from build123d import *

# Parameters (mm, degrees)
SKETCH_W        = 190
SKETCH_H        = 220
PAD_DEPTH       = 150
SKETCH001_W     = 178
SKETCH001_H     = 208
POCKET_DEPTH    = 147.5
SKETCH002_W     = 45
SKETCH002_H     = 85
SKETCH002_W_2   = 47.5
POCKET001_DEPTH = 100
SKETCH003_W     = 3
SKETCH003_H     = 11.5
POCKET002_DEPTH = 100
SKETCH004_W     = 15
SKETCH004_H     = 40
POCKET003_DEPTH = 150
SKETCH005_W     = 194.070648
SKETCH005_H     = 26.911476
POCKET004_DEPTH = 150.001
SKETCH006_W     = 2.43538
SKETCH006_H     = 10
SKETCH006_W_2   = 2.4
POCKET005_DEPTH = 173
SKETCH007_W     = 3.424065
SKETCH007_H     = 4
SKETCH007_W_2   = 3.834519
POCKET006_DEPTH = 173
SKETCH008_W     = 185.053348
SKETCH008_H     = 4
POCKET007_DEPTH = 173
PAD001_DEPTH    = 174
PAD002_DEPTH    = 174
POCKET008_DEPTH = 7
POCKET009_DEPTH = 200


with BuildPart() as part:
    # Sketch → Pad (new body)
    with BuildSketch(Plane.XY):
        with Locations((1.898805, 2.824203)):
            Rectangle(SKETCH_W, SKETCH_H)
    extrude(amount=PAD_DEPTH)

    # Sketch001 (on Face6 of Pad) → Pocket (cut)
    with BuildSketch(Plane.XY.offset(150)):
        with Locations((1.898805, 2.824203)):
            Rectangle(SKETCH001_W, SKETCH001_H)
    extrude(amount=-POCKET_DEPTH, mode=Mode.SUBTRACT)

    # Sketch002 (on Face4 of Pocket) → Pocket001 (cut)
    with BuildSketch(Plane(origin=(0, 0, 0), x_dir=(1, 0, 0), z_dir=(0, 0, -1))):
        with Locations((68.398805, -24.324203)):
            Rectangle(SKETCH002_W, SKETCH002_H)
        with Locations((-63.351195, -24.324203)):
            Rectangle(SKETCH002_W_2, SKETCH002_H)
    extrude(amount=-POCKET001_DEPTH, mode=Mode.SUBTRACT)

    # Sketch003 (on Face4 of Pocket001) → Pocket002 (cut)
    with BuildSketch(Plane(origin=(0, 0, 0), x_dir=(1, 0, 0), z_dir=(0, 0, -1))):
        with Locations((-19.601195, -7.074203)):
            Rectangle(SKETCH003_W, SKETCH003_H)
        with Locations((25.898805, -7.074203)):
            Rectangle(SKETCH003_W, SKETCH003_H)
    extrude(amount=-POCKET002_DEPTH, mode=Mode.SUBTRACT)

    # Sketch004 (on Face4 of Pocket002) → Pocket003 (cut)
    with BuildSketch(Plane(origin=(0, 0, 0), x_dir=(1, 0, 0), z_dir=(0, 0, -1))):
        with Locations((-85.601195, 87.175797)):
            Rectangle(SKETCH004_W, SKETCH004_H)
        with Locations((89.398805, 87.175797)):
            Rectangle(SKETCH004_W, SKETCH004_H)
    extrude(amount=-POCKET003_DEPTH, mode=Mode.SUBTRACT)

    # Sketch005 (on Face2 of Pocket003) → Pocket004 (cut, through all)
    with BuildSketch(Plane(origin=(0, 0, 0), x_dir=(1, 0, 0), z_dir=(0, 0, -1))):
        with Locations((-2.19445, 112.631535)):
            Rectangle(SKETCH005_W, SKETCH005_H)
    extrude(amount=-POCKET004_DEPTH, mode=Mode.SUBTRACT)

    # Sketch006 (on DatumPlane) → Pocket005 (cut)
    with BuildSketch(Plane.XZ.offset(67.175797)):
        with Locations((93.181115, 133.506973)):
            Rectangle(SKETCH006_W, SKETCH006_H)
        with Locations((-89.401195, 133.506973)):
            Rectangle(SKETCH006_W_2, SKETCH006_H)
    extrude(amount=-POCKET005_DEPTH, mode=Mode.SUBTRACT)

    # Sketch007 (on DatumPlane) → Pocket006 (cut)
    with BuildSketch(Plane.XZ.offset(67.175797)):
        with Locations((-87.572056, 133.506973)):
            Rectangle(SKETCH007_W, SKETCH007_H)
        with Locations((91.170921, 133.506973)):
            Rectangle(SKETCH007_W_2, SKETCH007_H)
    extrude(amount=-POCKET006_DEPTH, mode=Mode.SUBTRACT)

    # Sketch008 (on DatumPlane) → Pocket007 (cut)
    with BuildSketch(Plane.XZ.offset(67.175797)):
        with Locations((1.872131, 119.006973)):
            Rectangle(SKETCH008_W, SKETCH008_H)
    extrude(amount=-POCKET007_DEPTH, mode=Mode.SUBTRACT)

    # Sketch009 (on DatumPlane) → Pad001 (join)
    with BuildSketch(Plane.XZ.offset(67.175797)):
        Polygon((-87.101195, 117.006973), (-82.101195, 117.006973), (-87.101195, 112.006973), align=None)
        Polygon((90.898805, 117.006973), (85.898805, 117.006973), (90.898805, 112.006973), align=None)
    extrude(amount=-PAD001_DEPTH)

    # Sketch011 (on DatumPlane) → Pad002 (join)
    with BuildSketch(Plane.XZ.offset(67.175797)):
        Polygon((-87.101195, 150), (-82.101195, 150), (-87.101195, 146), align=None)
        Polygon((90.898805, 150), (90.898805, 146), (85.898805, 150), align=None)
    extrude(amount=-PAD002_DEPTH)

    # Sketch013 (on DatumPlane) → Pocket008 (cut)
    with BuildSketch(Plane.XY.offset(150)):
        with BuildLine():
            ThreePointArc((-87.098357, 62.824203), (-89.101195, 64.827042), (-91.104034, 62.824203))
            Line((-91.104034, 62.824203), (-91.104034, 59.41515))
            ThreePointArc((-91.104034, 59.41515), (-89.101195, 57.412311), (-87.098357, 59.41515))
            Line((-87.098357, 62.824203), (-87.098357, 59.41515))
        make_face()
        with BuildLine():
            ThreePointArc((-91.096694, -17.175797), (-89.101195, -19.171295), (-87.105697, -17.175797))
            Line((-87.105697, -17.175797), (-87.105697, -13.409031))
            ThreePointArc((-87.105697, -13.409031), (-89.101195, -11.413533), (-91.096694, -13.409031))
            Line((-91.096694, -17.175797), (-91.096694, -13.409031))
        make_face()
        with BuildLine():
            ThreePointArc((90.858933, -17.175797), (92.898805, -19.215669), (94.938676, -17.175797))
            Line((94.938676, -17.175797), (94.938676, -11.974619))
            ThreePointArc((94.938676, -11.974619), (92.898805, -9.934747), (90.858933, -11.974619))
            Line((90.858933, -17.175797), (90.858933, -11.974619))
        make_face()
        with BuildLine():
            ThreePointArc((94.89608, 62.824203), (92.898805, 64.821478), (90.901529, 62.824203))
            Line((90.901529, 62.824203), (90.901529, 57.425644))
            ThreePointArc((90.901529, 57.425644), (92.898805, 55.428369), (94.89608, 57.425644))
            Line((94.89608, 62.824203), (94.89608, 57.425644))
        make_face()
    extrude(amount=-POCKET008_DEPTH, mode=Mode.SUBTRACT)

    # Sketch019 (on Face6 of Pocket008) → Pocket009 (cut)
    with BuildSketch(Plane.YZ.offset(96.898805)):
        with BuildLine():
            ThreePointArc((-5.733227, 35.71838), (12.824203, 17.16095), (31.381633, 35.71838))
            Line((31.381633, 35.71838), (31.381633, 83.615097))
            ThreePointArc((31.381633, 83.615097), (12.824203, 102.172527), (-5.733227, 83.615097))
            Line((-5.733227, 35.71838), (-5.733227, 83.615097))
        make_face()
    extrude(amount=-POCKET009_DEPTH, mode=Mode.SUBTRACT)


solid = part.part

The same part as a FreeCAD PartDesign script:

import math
import FreeCAD as App
import Part
import Sketcher

V = App.Vector


def add_polygon(sketch, points):
    """Adds a closed chain of lines whose ends are joined by coincident constraints."""
    first, n = sketch.GeometryCount, len(points)
    for a, b in zip(points, points[1:] + points[:1]):
        sketch.addGeometry(Part.LineSegment(App.Vector(*a, 0), App.Vector(*b, 0)), False)
    for i in range(n):
        sketch.addConstraint(Sketcher.Constraint("Coincident", first + i, 2, first + (i + 1) % n, 1))

doc = App.newDocument("Part")
body = doc.addObject("PartDesign::Body", "Body")

# Sketch on XY plane
sketch1 = doc.addObject("Sketcher::SketchObject", "Sketch")
body.addObject(sketch1)
sketch1.AttachmentSupport = (doc.XY_Plane, [""])
sketch1.MapMode = "FlatFace"
add_polygon(sketch1, [(-93, 113), (-93, -107), (97, -107), (97, 113)])  # lines 0-3
sketch1.addConstraint([
    Sketcher.Constraint("Vertical", 0),
    Sketcher.Constraint("Horizontal", 1),
    Sketcher.Constraint("Vertical", 2),
    Sketcher.Constraint("Horizontal", 3),
    Sketcher.Constraint("DistanceX", 1, 1, 1, 2, 190.0),
    Sketcher.Constraint("DistanceY", 0, 2, 0, 1, 220.0),
    Sketcher.Constraint("DistanceX", 0, 2, -1, 1, 93.101195),
    Sketcher.Constraint("DistanceY", 0, 2, -1, 1, 107.175797),
])
pad1 = doc.addObject("PartDesign::Pad", "Pad")
body.addObject(pad1)
pad1.Profile = sketch1
pad1.Length = 150

# Sketch on XY plane
sketch2 = doc.addObject("Sketcher::SketchObject", "Sketch001")
body.addObject(sketch2)
sketch2.AttachmentSupport = (doc.XY_Plane, [""])
sketch2.MapMode = "FlatFace"
sketch2.AttachmentOffset = App.Placement(V(0, 0, 150), App.Rotation())
add_polygon(sketch2, [(-87, 107), (-87, -101), (91, -101), (91, 107)])  # lines 0-3
sketch2.addConstraint([
    Sketcher.Constraint("Vertical", 0),
    Sketcher.Constraint("Horizontal", 1),
    Sketcher.Constraint("Vertical", 2),
    Sketcher.Constraint("Horizontal", 3),
    Sketcher.Constraint("DistanceX", 1, 1, 1, 2, 178.0),
    Sketcher.Constraint("DistanceY", 0, 2, 0, 1, 208.0),
    Sketcher.Constraint("DistanceX", 0, 2, -1, 1, 87.101195),
    Sketcher.Constraint("DistanceY", 0, 2, -1, 1, 101.175797),
])
pocket1 = doc.addObject("PartDesign::Pocket", "Pocket")
body.addObject(pocket1)
pocket1.Profile = sketch2
pocket1.Length = 147.5

# Sketch on XY plane
sketch3 = doc.addObject("Sketcher::SketchObject", "Sketch002")
body.addObject(sketch3)
sketch3.AttachmentSupport = (doc.XY_Plane, [""])
sketch3.MapMode = "FlatFace"
add_polygon(sketch3, [(46, -18), (46, 67), (91, 67), (91, -18)])  # lines 0-3
add_polygon(sketch3, [(-87, -18), (-87, 67), (-40, 67), (-40, -18)])  # lines 4-7
sketch3.addConstraint([
    Sketcher.Constraint("Vertical", 0),
    Sketcher.Constraint("Horizontal", 1),
    Sketcher.Constraint("Vertical", 2),
    Sketcher.Constraint("Horizontal", 3),
    Sketcher.Constraint("Vertical", 4),
    Sketcher.Constraint("Horizontal", 5),
    Sketcher.Constraint("Vertical", 6),
    Sketcher.Constraint("Horizontal", 7),
    Sketcher.Constraint("Horizontal", 1, 2, 4, 2),
    Sketcher.Constraint("Horizontal", 3, 2, 6, 2),
    Sketcher.Constraint("DistanceX", 1, 1, 1, 2, 45.0),
    Sketcher.Constraint("DistanceY", 0, 1, 0, 2, 85.0),
    Sketcher.Constraint("DistanceX", 5, 1, 5, 2, 47.5),
    Sketcher.Constraint("DistanceX", 4, 2, 0, 2, 133.0),
    Sketcher.Constraint("DistanceX", -1, 1, 0, 2, 45.898805),
    Sketcher.Constraint("DistanceY", -1, 1, 0, 2, 66.824203),
])
pocket2 = doc.addObject("PartDesign::Pocket", "Pocket001")
body.addObject(pocket2)
pocket2.Profile = sketch3
pocket2.Length = 100
pocket2.Reversed = True

# Sketch on XY plane
sketch4 = doc.addObject("Sketcher::SketchObject", "Sketch003")
body.addObject(sketch4)
sketch4.AttachmentSupport = (doc.XY_Plane, [""])
sketch4.MapMode = "FlatFace"
add_polygon(sketch4, [(-21.1, 1.3), (-21.1, 12.8), (-18.1, 12.8), (-18.1, 1.3)])  # lines 0-3
add_polygon(sketch4, [(24.4, 1.3), (24.4, 12.8), (27.4, 12.8), (27.4, 1.3)])  # lines 4-7
sketch4.addConstraint([
    Sketcher.Constraint("Vertical", 0),
    Sketcher.Constraint("Horizontal", 1),
    Sketcher.Constraint("Vertical", 2),
    Sketcher.Constraint("Horizontal", 3),
    Sketcher.Constraint("Vertical", 4),
    Sketcher.Constraint("Horizontal", 5),
    Sketcher.Constraint("Vertical", 6),
    Sketcher.Constraint("Horizontal", 7),
    Sketcher.Constraint("Horizontal", 1, 2, 4, 2),
    Sketcher.Constraint("Horizontal", 3, 2, 6, 2),
    Sketcher.Constraint("Equal", 3, 5),
    Sketcher.Constraint("DistanceX", 1, 1, 1, 2, 3.0),
    Sketcher.Constraint("DistanceY", 0, 1, 0, 2, 11.5),
    Sketcher.Constraint("DistanceX", 1, 2, 4, 2, 42.5),
    Sketcher.Constraint("DistanceX", 0, 2, -1, 1, 21.101195),
    Sketcher.Constraint("DistanceY", -1, 1, 0, 2, 12.824203),
])
pocket3 = doc.addObject("PartDesign::Pocket", "Pocket002")
body.addObject(pocket3)
pocket3.Profile = sketch4
pocket3.Length = 100
pocket3.Reversed = True

# Sketch on XY plane
sketch5 = doc.addObject("Sketcher::SketchObject", "Sketch004")
body.addObject(sketch5)
sketch5.AttachmentSupport = (doc.XY_Plane, [""])
sketch5.MapMode = "FlatFace"
add_polygon(sketch5, [(-93, -107), (-93, -67), (-78, -67), (-78, -107)])  # lines 0-3
add_polygon(sketch5, [(82, -107), (82, -67), (97, -67), (97, -107)])  # lines 4-7
sketch5.addConstraint([
    Sketcher.Constraint("Vertical", 0),
    Sketcher.Constraint("Horizontal", 1),
    Sketcher.Constraint("Vertical", 2),
    Sketcher.Constraint("Horizontal", 3),
    Sketcher.Constraint("Vertical", 4),
    Sketcher.Constraint("Horizontal", 5),
    Sketcher.Constraint("Vertical", 6),
    Sketcher.Constraint("Horizontal", 7),
    Sketcher.Constraint("Horizontal", 1, 2, 4, 2),
    Sketcher.Constraint("Horizontal", 3, 2, 6, 2),
    Sketcher.Constraint("Equal", 3, 5),
    Sketcher.Constraint("DistanceX", 1, 1, 1, 2, 15.0),
    Sketcher.Constraint("DistanceY", 0, 1, 0, 2, 40.0),
    Sketcher.Constraint("DistanceX", 1, 2, 4, 2, 160.0),
    Sketcher.Constraint("DistanceX", 0, 2, -1, 1, 93.101195),
    Sketcher.Constraint("DistanceY", 0, 2, -1, 1, 67.175797),
])
pocket4 = doc.addObject("PartDesign::Pocket", "Pocket003")
body.addObject(pocket4)
pocket4.Profile = sketch5
pocket4.Length = 150
pocket4.Reversed = True

# Sketch on XY plane
sketch6 = doc.addObject("Sketcher::SketchObject", "Sketch005")
body.addObject(sketch6)
sketch6.AttachmentSupport = (doc.XY_Plane, [""])
sketch6.MapMode = "FlatFace"
add_polygon(sketch6, [(-99, -126), (-99, -99), (95, -99), (95, -126)])  # lines 0-3
sketch6.addConstraint([
    Sketcher.Constraint("Vertical", 0),
    Sketcher.Constraint("Horizontal", 1),
    Sketcher.Constraint("Vertical", 2),
    Sketcher.Constraint("Horizontal", 3),
    Sketcher.Constraint("DistanceX", 1, 1, 1, 2, 194.070648),
    Sketcher.Constraint("DistanceY", 0, 1, 0, 2, 26.911476),
    Sketcher.Constraint("DistanceX", 0, 2, -1, 1, 99.229774),
    Sketcher.Constraint("DistanceY", 0, 2, -1, 1, 99.175797),
])
pocket5 = doc.addObject("PartDesign::Pocket", "Pocket004")
body.addObject(pocket5)
pocket5.Profile = sketch6
pocket5.Type = "ThroughAll"
pocket5.Reversed = True

# Sketch on XZ plane
sketch7 = doc.addObject("Sketcher::SketchObject", "Sketch006")
body.addObject(sketch7)
sketch7.AttachmentSupport = (doc.XZ_Plane, [""])
sketch7.MapMode = "FlatFace"
sketch7.AttachmentOffset = App.Placement(V(0, 0, 67.175797), App.Rotation())
add_polygon(sketch7, [(92, 138.5), (92, 128.5), (94.4, 128.5), (94.4, 138.5)])  # lines 0-3
add_polygon(sketch7, [(-90.6, 138.5), (-90.6, 128.5), (-88.2, 128.5), (-88.2, 138.5)])  # lines 4-7
sketch7.addConstraint([
    Sketcher.Constraint("Vertical", 0),
    Sketcher.Constraint("Horizontal", 1),
    Sketcher.Constraint("Vertical", 2),
    Sketcher.Constraint("Horizontal", 3),
    Sketcher.Constraint("Vertical", 4),
    Sketcher.Constraint("Horizontal", 5),
    Sketcher.Constraint("Vertical", 6),
    Sketcher.Constraint("Horizontal", 7),
    Sketcher.Constraint("Horizontal", 1, 2, 4, 2),
    Sketcher.Constraint("Horizontal", 3, 2, 6, 2),
    Sketcher.Constraint("DistanceY", 0, 2, 0, 1, 10.0),
    Sketcher.Constraint("DistanceX", 5, 1, 5, 2, 2.4),
    Sketcher.Constraint("DistanceX", 4, 2, 1, 2, 185.0),
    Sketcher.Constraint("DistanceX", 1, 1, 1, 2, 2.43538),
    Sketcher.Constraint("DistanceX", -1, 1, 0, 2, 91.963425),
    Sketcher.Constraint("DistanceY", -1, 1, 0, 2, 128.506973),
])
pocket6 = doc.addObject("PartDesign::Pocket", "Pocket005")
body.addObject(pocket6)
pocket6.Profile = sketch7
pocket6.Length = 173

# Sketch on XZ plane
sketch8 = doc.addObject("Sketcher::SketchObject", "Sketch007")
body.addObject(sketch8)
sketch8.AttachmentSupport = (doc.XZ_Plane, [""])
sketch8.MapMode = "FlatFace"
sketch8.AttachmentOffset = App.Placement(V(0, 0, 67.175797), App.Rotation())
add_polygon(sketch8, [(-89.3, 135.5), (-89.3, 131.5), (-85.9, 131.5), (-85.9, 135.5)])  # lines 0-3
add_polygon(sketch8, [(89.3, 135.5), (89.3, 131.5), (93.1, 131.5), (93.1, 135.5)])  # lines 4-7
sketch8.addConstraint([
    Sketcher.Constraint("Vertical", 0),
    Sketcher.Constraint("Horizontal", 1),
    Sketcher.Constraint("Vertical", 2),
    Sketcher.Constraint("Horizontal", 3),
    Sketcher.Constraint("Vertical", 4),
    Sketcher.Constraint("Horizontal", 5),
    Sketcher.Constraint("Vertical", 6),
    Sketcher.Constraint("Horizontal", 7),
    Sketcher.Constraint("Horizontal", 1, 2, 4, 2),
    Sketcher.Constraint("Horizontal", 3, 2, 6, 2),
    Sketcher.Constraint("DistanceY", 0, 2, 0, 1, 4.0),
    Sketcher.Constraint("DistanceX", 5, 1, 5, 2, 3.834519),
    Sketcher.Constraint("DistanceX", 1, 1, 1, 2, 3.424065),
    Sketcher.Constraint("DistanceX", 0, 2, -1, 1, 89.284088),
    Sketcher.Constraint("DistanceX", -1, 1, 4, 2, 89.253662),
    Sketcher.Constraint("DistanceY", -1, 1, 0, 2, 131.506973),
])
pocket7 = doc.addObject("PartDesign::Pocket", "Pocket006")
body.addObject(pocket7)
pocket7.Profile = sketch8
pocket7.Length = 173

# Sketch on XZ plane
sketch9 = doc.addObject("Sketcher::SketchObject", "Sketch008")
body.addObject(sketch9)
sketch9.AttachmentSupport = (doc.XZ_Plane, [""])
sketch9.MapMode = "FlatFace"
sketch9.AttachmentOffset = App.Placement(V(0, 0, 67.175797), App.Rotation())
add_polygon(sketch9, [(-90.7, 121), (-90.7, 117), (94.4, 117), (94.4, 121)])  # lines 0-3
sketch9.addConstraint([
    Sketcher.Constraint("Vertical", 0),
    Sketcher.Constraint("Horizontal", 1),
    Sketcher.Constraint("Vertical", 2),
    Sketcher.Constraint("Horizontal", 3),
    Sketcher.Constraint("DistanceY", 0, 2, 0, 1, 4.0),
    Sketcher.Constraint("DistanceX", 1, 1, 1, 2, 185.053348),
    Sketcher.Constraint("DistanceX", 0, 2, -1, 1, 90.654543),
    Sketcher.Constraint("DistanceY", -1, 1, 0, 2, 117.006973),
])
pocket8 = doc.addObject("PartDesign::Pocket", "Pocket007")
body.addObject(pocket8)
pocket8.Profile = sketch9
pocket8.Length = 173

# Sketch on XZ plane
sketch10 = doc.addObject("Sketcher::SketchObject", "Sketch009")
body.addObject(sketch10)
sketch10.AttachmentSupport = (doc.XZ_Plane, [""])
sketch10.MapMode = "FlatFace"
sketch10.AttachmentOffset = App.Placement(V(0, 0, 67.175797), App.Rotation())
add_polygon(sketch10, [(-82, 117), (-87, 117), (-87, 112)])  # lines 0-2
add_polygon(sketch10, [(91, 117), (86, 117), (91, 112)])  # lines 3-5
sketch10.addConstraint([
    Sketcher.Constraint("Horizontal", 0),
    Sketcher.Constraint("Vertical", 1),
    Sketcher.Constraint("Horizontal", 3),
    Sketcher.Constraint("Vertical", 5),
    Sketcher.Constraint("Perpendicular", 2, 4),
    Sketcher.Constraint("Horizontal", 2, 2, 3, 2),
    Sketcher.Constraint("Horizontal", 1, 2, 4, 2),
    Sketcher.Constraint("Equal", 0, 3),
    Sketcher.Constraint("DistanceX", 0, 2, 0, 1, 5.0),
    Sketcher.Constraint("DistanceX", 2, 2, 3, 2, 168.0),
    Sketcher.Constraint("DistanceX", 0, 2, -1, 1, 87.101195),
    Sketcher.Constraint("DistanceY", -1, 1, 0, 2, 117.006973),
])
pad2 = doc.addObject("PartDesign::Pad", "Pad001")
body.addObject(pad2)
pad2.Profile = sketch10
pad2.Length = 174
pad2.Reversed = True

# Sketch on XZ plane
sketch11 = doc.addObject("Sketcher::SketchObject", "Sketch010")
body.addObject(sketch11)
sketch11.AttachmentSupport = (doc.XZ_Plane, [""])
sketch11.MapMode = "FlatFace"
sketch11.AttachmentOffset = App.Placement(V(0, 0, 67.175797), App.Rotation())
add_polygon(sketch11, [(-82.1, 150), (-87.1, 150), (-87.1, 146)])  # lines 0-2
add_polygon(sketch11, [(90.9, 146), (90.9, 150), (85.9, 150)])  # lines 3-5
sketch11.addConstraint([
    Sketcher.Constraint("Horizontal", 0),
    Sketcher.Constraint("Vertical", 1),
    Sketcher.Constraint("Vertical", 3),
    Sketcher.Constraint("Horizontal", 4),
    Sketcher.Constraint("Horizontal", 2, 2, 3, 2),
    Sketcher.Constraint("Horizontal", 1, 2, 5, 2),
    Sketcher.Constraint("Equal", 0, 4),
    Sketcher.Constraint("DistanceX", 0, 2, 0, 1, 5.0),
    Sketcher.Constraint("DistanceY", 1, 2, 1, 1, 4.0),
    Sketcher.Constraint("DistanceY", -1, 1, 0, 2, 150.0),
    Sketcher.Constraint("DistanceX", 2, 2, 3, 2, 173.0),
    Sketcher.Constraint("DistanceX", 0, 2, -1, 1, 87.101195),
])
pad3 = doc.addObject("PartDesign::Pad", "Pad002")
body.addObject(pad3)
pad3.Profile = sketch11
pad3.Length = 174
pad3.Reversed = True

# Sketch on XY plane
sketch12 = doc.addObject("Sketcher::SketchObject", "Sketch011")
body.addObject(sketch12)
sketch12.AttachmentSupport = (doc.XY_Plane, [""])
sketch12.MapMode = "FlatFace"
sketch12.AttachmentOffset = App.Placement(V(0, 0, 150), App.Rotation())
sketch12.addGeometry([
    Part.ArcOfCircle(Part.Circle(V(-89.1, 62.8, 0), V(0, 0, 1), 2), math.radians(0), math.radians(180)),  # 0
    Part.LineSegment(V(-91.1, 62.8, 0), V(-91.1, 59.4, 0)),  # 1
    Part.ArcOfCircle(Part.Circle(V(-89.1, 59.4, 0), V(0, 0, 1), 2), math.radians(180), math.radians(360)),  # 2
    Part.LineSegment(V(-87.1, 59.4, 0), V(-87.1, 62.8, 0)),  # 3
    Part.ArcOfCircle(Part.Circle(V(-89.1, -17.2, 0), V(0, 0, 1), 2), math.radians(-180), math.radians(0)),  # 4
    Part.LineSegment(V(-87.1, -17.2, 0), V(-87.1, -13.4, 0)),  # 5
    Part.ArcOfCircle(Part.Circle(V(-89.1, -13.4, 0), V(0, 0, 1), 2), math.radians(0), math.radians(180)),  # 6
    Part.LineSegment(V(-91.1, -13.4, 0), V(-91.1, -17.2, 0)),  # 7
    Part.ArcOfCircle(Part.Circle(V(92.9, -17.2, 0), V(0, 0, 1), 2), math.radians(180), math.radians(360)),  # 8
    Part.LineSegment(V(94.9, -17.2, 0), V(94.9, -12, 0)),  # 9
    Part.ArcOfCircle(Part.Circle(V(92.9, -12, 0), V(0, 0, 1), 2), math.radians(0), math.radians(180)),  # 10
    Part.LineSegment(V(90.9, -12, 0), V(90.9, -17.2, 0)),  # 11
    Part.ArcOfCircle(Part.Circle(V(92.9, 62.8, 0), V(0, 0, 1), 2), math.radians(0), math.radians(180)),  # 12
    Part.LineSegment(V(90.9, 62.8, 0), V(90.9, 57.4, 0)),  # 13
    Part.ArcOfCircle(Part.Circle(V(92.9, 57.4, 0), V(0, 0, 1), 2), math.radians(-180), math.radians(0)),  # 14
    Part.LineSegment(V(94.9, 57.4, 0), V(94.9, 62.8, 0)),  # 15
], False)
sketch12.addConstraint([
    Sketcher.Constraint("Tangent", 0, 2, 1, 1),
    Sketcher.Constraint("Tangent", 1, 2, 2, 1),
    Sketcher.Constraint("Tangent", 2, 2, 3, 1),
    Sketcher.Constraint("Tangent", 3, 2, 0, 1),
    Sketcher.Constraint("Tangent", 4, 2, 5, 1),
    Sketcher.Constraint("Tangent", 5, 2, 6, 1),
    Sketcher.Constraint("Tangent", 6, 2, 7, 1),
    Sketcher.Constraint("Tangent", 7, 2, 4, 1),
    Sketcher.Constraint("Tangent", 8, 2, 9, 1),
    Sketcher.Constraint("Tangent", 9, 2, 10, 1),
    Sketcher.Constraint("Tangent", 10, 2, 11, 1),
    Sketcher.Constraint("Tangent", 11, 2, 8, 1),
    Sketcher.Constraint("Tangent", 12, 2, 13, 1),
    Sketcher.Constraint("Tangent", 13, 2, 14, 1),
    Sketcher.Constraint("Tangent", 14, 2, 15, 1),
    Sketcher.Constraint("Tangent", 15, 2, 12, 1),
    Sketcher.Constraint("Vertical", 1),
    Sketcher.Constraint("Vertical", 3),
    Sketcher.Constraint("Vertical", 5),
    Sketcher.Constraint("Vertical", 7),
    Sketcher.Constraint("Vertical", 9),
    Sketcher.Constraint("Vertical", 11),
    Sketcher.Constraint("Vertical", 13),
    Sketcher.Constraint("Vertical", 15),
    Sketcher.Constraint("Horizontal", 4, 3, 8, 3),
    Sketcher.Constraint("Horizontal", 0, 3, 12, 3),
    Sketcher.Constraint("Vertical", 2, 3, 4, 3),
    Sketcher.Constraint("Vertical", 10, 3, 12, 3),
    Sketcher.Constraint("DistanceY", 4, 3, 0, 3, 80.0),
    Sketcher.Constraint("DistanceX", 4, 3, 8, 3, 182.0),
    Sketcher.Constraint("Radius", 4, 1.995499),
    Sketcher.Constraint("Radius", 0, 2.002839),
    Sketcher.Constraint("Radius", 8, 2.039871),
    Sketcher.Constraint("Radius", 12, 1.997275),
    Sketcher.Constraint("DistanceY", 13, 2, 13, 1, 5.398559),
    Sketcher.Constraint("DistanceY", 1, 2, 1, 1, 3.409053),
    Sketcher.Constraint("DistanceY", 5, 1, 5, 2, 3.766766),
    Sketcher.Constraint("DistanceY", 9, 1, 9, 2, 5.201178),
    Sketcher.Constraint("DistanceY", -1, 1, 2, 3, 59.415149),
    Sketcher.Constraint("DistanceX", -1, 1, 12, 2, 90.901529),
])
pocket9 = doc.addObject("PartDesign::Pocket", "Pocket008")
body.addObject(pocket9)
pocket9.Profile = sketch12
pocket9.Length = 7

# Sketch on YZ plane
sketch13 = doc.addObject("Sketcher::SketchObject", "Sketch012")
body.addObject(sketch13)
sketch13.AttachmentSupport = (doc.YZ_Plane, [""])
sketch13.MapMode = "FlatFace"
sketch13.AttachmentOffset = App.Placement(V(0, 0, 96.898805), App.Rotation())
sketch13.addGeometry([
    Part.ArcOfCircle(Part.Circle(V(13, 36, 0), V(0, 0, 1), 19), math.radians(180), math.radians(360)),
    Part.LineSegment(V(31, 36, 0), V(31, 84, 0)),
    Part.ArcOfCircle(Part.Circle(V(13, 84, 0), V(0, 0, 1), 19), math.radians(0), math.radians(180)),
    Part.LineSegment(V(-6, 84, 0), V(-6, 36, 0)),
], False)
sketch13.addConstraint([
    Sketcher.Constraint("Tangent", 0, 2, 1, 1),
    Sketcher.Constraint("Tangent", 1, 2, 2, 1),
    Sketcher.Constraint("Tangent", 2, 2, 3, 1),
    Sketcher.Constraint("Tangent", 3, 2, 0, 1),
    Sketcher.Constraint("Vertical", 1),
    Sketcher.Constraint("Vertical", 3),
    Sketcher.Constraint("Radius", 0, 18.55743),
    Sketcher.Constraint("DistanceY", 1, 1, 1, 2, 47.896717),
    Sketcher.Constraint("DistanceY", -1, 1, 0, 3, 35.71838),
    Sketcher.Constraint("DistanceX", -1, 1, 0, 3, 12.824203),
])
pocket10 = doc.addObject("PartDesign::Pocket", "Pocket009")
body.addObject(pocket10)
pocket10.Profile = sketch13
pocket10.Length = 200

doc.recompute()
